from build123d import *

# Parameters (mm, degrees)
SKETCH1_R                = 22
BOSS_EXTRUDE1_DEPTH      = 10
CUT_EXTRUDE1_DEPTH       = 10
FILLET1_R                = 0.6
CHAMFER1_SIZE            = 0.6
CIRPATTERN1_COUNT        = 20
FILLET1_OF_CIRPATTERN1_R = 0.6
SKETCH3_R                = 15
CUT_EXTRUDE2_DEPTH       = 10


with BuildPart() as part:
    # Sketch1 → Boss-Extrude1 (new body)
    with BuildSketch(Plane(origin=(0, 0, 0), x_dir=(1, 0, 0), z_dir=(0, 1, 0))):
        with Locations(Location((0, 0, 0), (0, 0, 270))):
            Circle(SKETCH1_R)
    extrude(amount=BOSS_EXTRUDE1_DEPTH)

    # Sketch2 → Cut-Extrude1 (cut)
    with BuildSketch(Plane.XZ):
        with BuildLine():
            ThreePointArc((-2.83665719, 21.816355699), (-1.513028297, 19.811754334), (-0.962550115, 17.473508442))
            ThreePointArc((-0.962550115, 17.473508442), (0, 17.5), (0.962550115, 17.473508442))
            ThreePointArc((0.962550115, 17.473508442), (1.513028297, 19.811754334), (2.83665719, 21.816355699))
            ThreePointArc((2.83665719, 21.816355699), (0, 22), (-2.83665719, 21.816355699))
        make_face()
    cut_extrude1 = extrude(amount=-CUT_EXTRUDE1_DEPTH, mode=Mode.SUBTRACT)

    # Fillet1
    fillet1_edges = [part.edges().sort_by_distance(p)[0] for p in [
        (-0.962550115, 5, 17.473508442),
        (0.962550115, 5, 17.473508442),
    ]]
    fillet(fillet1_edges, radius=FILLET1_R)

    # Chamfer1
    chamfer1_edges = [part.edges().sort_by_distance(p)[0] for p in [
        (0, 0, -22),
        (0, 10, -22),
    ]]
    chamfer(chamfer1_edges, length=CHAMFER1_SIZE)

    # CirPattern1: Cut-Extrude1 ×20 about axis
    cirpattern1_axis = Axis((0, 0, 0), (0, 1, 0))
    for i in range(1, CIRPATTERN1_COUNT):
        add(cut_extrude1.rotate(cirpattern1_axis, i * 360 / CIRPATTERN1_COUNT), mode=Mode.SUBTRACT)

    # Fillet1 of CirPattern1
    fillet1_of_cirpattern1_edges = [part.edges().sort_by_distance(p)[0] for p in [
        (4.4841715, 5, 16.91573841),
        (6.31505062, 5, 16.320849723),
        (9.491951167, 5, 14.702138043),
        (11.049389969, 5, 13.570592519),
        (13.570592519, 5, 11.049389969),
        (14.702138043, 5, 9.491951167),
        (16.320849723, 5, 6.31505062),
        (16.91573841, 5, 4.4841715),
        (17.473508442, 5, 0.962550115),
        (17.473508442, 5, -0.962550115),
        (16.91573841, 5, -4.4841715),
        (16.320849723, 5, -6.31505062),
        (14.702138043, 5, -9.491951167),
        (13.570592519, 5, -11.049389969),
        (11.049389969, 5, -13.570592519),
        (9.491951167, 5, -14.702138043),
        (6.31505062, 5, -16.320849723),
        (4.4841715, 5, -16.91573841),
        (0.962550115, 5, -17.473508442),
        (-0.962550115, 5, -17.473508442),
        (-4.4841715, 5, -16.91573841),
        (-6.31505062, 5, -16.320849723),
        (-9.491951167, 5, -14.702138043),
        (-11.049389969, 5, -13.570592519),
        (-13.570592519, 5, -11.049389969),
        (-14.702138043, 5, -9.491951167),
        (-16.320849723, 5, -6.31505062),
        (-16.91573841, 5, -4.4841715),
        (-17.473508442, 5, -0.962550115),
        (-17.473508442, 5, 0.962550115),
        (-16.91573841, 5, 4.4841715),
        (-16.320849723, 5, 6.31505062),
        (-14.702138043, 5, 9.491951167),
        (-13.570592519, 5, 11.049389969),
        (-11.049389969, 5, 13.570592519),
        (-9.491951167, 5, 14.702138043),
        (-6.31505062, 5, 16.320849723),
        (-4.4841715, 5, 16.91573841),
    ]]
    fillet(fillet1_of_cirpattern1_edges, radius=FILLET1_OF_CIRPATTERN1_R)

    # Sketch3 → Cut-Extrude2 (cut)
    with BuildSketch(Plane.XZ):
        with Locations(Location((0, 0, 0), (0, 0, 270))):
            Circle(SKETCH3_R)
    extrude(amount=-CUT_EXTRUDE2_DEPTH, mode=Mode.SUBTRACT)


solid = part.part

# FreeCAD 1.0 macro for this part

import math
import FreeCAD as App
import Part
import Sketcher


def edges_at(feature, points):
    """Names of the edges that pass closest to the given points."""
    edges = feature.Shape.Edges
    near = lambda p: min(range(len(edges)), key=lambda i: edges[i].distToShape(Part.Vertex(*p))[0])
    return sorted({f"Edge{near(p) + 1}" for p in points})

doc = App.newDocument("Part")
body = doc.addObject("PartDesign::Body", "Body")

# Sketch on XZ plane
sketch1 = doc.addObject("Sketcher::SketchObject", "Sketch")
body.addObject(sketch1)
sketch1.AttachmentSupport = (doc.XZ_Plane, [""])
sketch1.MapMode = "FlatFace"
sketch1.addGeometry(Part.Circle(App.Vector(0, 0, 0), App.Vector(0, 0, 1), 22), False)
sketch1.addConstraint([
    Sketcher.Constraint("Coincident", 0, 3, -1, 1),
    Sketcher.Constraint("Diameter", 0, 44.0),
])
pad1 = doc.addObject("PartDesign::Pad", "Pad")
body.addObject(pad1)
pad1.Profile = sketch1
pad1.Length = 10
pad1.Reversed = True

# Sketch on XZ plane
sketch2 = doc.addObject("Sketcher::SketchObject", "Sketch001")
body.addObject(sketch2)
sketch2.AttachmentSupport = (doc.XZ_Plane, [""])
sketch2.MapMode = "FlatFace"
sketch2.addGeometry([
    Part.ArcOfCircle(Part.Circle(App.Vector(-7.804843, 17.096592, 0), App.Vector(0, 0, 1), 6.852667), math.radians(3.153023), math.radians(43.53112)),
    Part.ArcOfCircle(Part.Circle(App.Vector(0, 0, 0), App.Vector(0, 0, 1), 17.5), math.radians(86.846977), math.radians(93.153023)),
    Part.ArcOfCircle(Part.Circle(App.Vector(7.804843, 17.096592, 0), App.Vector(0, 0, 1), 6.852667), math.radians(136.46888), math.radians(176.846977)),
    Part.ArcOfCircle(Part.Circle(App.Vector(0, 0, 0), App.Vector(0, 0, 1), 22), math.radians(82.591717), math.radians(97.408283)),
], False)
sketch2.addConstraint([
    Sketcher.Constraint("Coincident", 0, 1, 1, 2),
    Sketcher.Constraint("Coincident", 1, 1, 2, 2),
    Sketcher.Constraint("Coincident", 2, 1, 3, 1),
    Sketcher.Constraint("Coincident", 3, 2, 0, 2),
    Sketcher.Constraint("Coincident", 1, 3, -1, 1),
    Sketcher.Constraint("Coincident", 3, 3, -1, 1),
    Sketcher.Constraint("Equal", 0, 2),
    Sketcher.Constraint("Symmetric", 0, 3, 2, 3, -2),
    Sketcher.Constraint("Radius", 3, 22.0),
    Sketcher.Constraint("Radius", 1, 17.5),
    Sketcher.Constraint("Radius", 0, 6.852667),
    Sketcher.Constraint("DistanceX", 0, 1, 1, 1, 1.9251),
    Sketcher.Constraint("DistanceX", 0, 3, 2, 1, 10.6415),
])
pocket1 = doc.addObject("PartDesign::Pocket", "Pocket")
body.addObject(pocket1)
pocket1.Profile = sketch2
pocket1.Length = 10
doc.recompute()

fillet = doc.addObject("PartDesign::Fillet", "Fillet")
body.addObject(fillet)
fillet.Base = (pocket1, edges_at(pocket1, [(-0.963, 5, 17.474), (0.963, 5, 17.474)]))
fillet.Radius = 0.6
doc.recompute()

chamfer = doc.addObject("PartDesign::Chamfer", "Chamfer")
body.addObject(chamfer)
chamfer.Base = (fillet, edges_at(fillet, [(0, 0, -22), (0, 10, -22)]))
chamfer.Size = 0.6
doc.recompute()

polarpattern = doc.addObject("PartDesign::PolarPattern", "PolarPattern")
body.addObject(polarpattern)
polarpattern.Originals = [pocket1]
polarpattern.Axis = (doc.Y_Axis, [""])
polarpattern.Angle = 360
polarpattern.Occurrences = 20
body.Tip = polarpattern
doc.recompute()

fillet2 = doc.addObject("PartDesign::Fillet", "Fillet001")
body.addObject(fillet2)
fillet2.Base = (polarpattern, edges_at(polarpattern, [
    (4.484, 5, 16.916),
    (6.315, 5, 16.321),
    (9.492, 5, 14.702),
    (11.049, 5, 13.571),
    (13.571, 5, 11.049),
    (14.702, 5, 9.492),
    (16.321, 5, 6.315),
    (16.916, 5, 4.484),
    (17.474, 5, 0.963),
    (17.474, 5, -0.963),
    (16.916, 5, -4.484),
    (16.321, 5, -6.315),
    (14.702, 5, -9.492),
    (13.571, 5, -11.049),
    (11.049, 5, -13.571),
    (9.492, 5, -14.702),
    (6.315, 5, -16.321),
    (4.484, 5, -16.916),
    (0.963, 5, -17.474),
    (-0.963, 5, -17.474),
    (-4.484, 5, -16.916),
    (-6.315, 5, -16.321),
    (-9.492, 5, -14.702),
    (-11.049, 5, -13.571),
    (-13.571, 5, -11.049),
    (-14.702, 5, -9.492),
    (-16.321, 5, -6.315),
    (-16.916, 5, -4.484),
    (-17.474, 5, -0.963),
    (-17.474, 5, 0.963),
    (-16.916, 5, 4.484),
    (-16.321, 5, 6.315),
    (-14.702, 5, 9.492),
    (-13.571, 5, 11.049),
    (-11.049, 5, 13.571),
    (-9.492, 5, 14.702),
    (-6.315, 5, 16.321),
    (-4.484, 5, 16.916),
]))
fillet2.Radius = 0.6

# Sketch on XZ plane
sketch3 = doc.addObject("Sketcher::SketchObject", "Sketch002")
body.addObject(sketch3)
sketch3.AttachmentSupport = (doc.XZ_Plane, [""])
sketch3.MapMode = "FlatFace"
sketch3.addGeometry(Part.Circle(App.Vector(0, 0, 0), App.Vector(0, 0, 1), 15), False)
sketch3.addConstraint([
    Sketcher.Constraint("Coincident", 0, 3, -1, 1),
    Sketcher.Constraint("Diameter", 0, 30.0),
])
pocket2 = doc.addObject("PartDesign::Pocket", "Pocket001")
body.addObject(pocket2)
pocket2.Profile = sketch3
pocket2.Length = 10

doc.recompute()
